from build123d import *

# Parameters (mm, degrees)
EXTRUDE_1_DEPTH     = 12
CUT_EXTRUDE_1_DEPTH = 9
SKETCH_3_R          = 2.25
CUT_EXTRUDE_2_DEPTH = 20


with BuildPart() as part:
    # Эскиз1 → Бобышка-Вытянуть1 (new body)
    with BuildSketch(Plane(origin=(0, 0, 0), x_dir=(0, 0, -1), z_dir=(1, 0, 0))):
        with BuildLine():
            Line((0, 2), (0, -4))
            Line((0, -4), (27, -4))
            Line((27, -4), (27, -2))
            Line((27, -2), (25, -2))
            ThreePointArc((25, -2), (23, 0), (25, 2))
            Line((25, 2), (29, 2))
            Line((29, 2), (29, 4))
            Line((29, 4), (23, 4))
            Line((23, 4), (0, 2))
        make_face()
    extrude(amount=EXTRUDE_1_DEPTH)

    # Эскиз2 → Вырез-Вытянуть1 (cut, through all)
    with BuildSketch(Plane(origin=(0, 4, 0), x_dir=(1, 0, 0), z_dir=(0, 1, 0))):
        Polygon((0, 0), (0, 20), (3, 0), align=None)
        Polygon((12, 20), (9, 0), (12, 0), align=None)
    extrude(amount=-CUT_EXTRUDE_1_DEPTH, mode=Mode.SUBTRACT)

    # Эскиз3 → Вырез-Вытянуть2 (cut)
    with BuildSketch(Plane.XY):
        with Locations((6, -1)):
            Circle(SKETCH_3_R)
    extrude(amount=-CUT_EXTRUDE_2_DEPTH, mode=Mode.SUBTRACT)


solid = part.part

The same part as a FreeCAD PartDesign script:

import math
import FreeCAD as App
import Part
import Sketcher

V = App.Vector


def add_polygon(sketch, points):
    """Adds a closed chain of lines whose ends are joined by coincident constraints."""
    first, n = sketch.GeometryCount, len(points)
    for a, b in zip(points, points[1:] + points[:1]):
        sketch.addGeometry(Part.LineSegment(App.Vector(*a, 0), App.Vector(*b, 0)), False)
    for i in range(n):
        sketch.addConstraint(Sketcher.Constraint("Coincident", first + i, 2, first + (i + 1) % n, 1))

doc = App.newDocument("Part")
body = doc.addObject("PartDesign::Body", "Body")

# Sketch on YZ plane
sketch1 = doc.addObject("Sketcher::SketchObject", "Sketch")
body.addObject(sketch1)
sketch1.AttachmentSupport = (doc.YZ_Plane, [""])
sketch1.MapMode = "FlatFace"
sketch1.addGeometry(Part.LineSegment(V(2, 0, 0), V(-4, 0, 0)), False)
sketch1.addGeometry(Part.LineSegment(V(-4, 0, 0), V(-4, -27, 0)), False)
sketch1.addGeometry(Part.LineSegment(V(-4, -27, 0), V(-2, -27, 0)), False)
sketch1.addGeometry(Part.LineSegment(V(-2, -27, 0), V(-2, -25, 0)), False)
sketch1.addGeometry(Part.ArcOfCircle(Part.Circle(V(0, -25, 0), V(0, 0, 1), 2), math.radians(0), math.radians(180)), False)
sketch1.addGeometry(Part.LineSegment(V(2, -25, 0), V(2, -29, 0)), False)
sketch1.addGeometry(Part.LineSegment(V(2, -29, 0), V(4, -29, 0)), False)
sketch1.addGeometry(Part.LineSegment(V(4, -29, 0), V(4, -23, 0)), False)
sketch1.addGeometry(Part.LineSegment(V(4, -23, 0), V(2, 0, 0)), False)
sketch1.addConstraint(Sketcher.Constraint("Coincident", 0, 2, 1, 1))
sketch1.addConstraint(Sketcher.Constraint("Coincident", 1, 2, 2, 1))
sketch1.addConstraint(Sketcher.Constraint("Coincident", 2, 2, 3, 1))
sketch1.addConstraint(Sketcher.Constraint("Tangent", 3, 2, 4, 2))
sketch1.addConstraint(Sketcher.Constraint("Tangent", 4, 1, 5, 1))
sketch1.addConstraint(Sketcher.Constraint("Coincident", 5, 2, 6, 1))
sketch1.addConstraint(Sketcher.Constraint("Coincident", 6, 2, 7, 1))
sketch1.addConstraint(Sketcher.Constraint("Coincident", 7, 2, 8, 1))
sketch1.addConstraint(Sketcher.Constraint("Coincident", 8, 2, 0, 1))
sketch1.addConstraint(Sketcher.Constraint("Horizontal", 0))
sketch1.addConstraint(Sketcher.Constraint("Vertical", 1))
sketch1.addConstraint(Sketcher.Constraint("Horizontal", 2))
sketch1.addConstraint(Sketcher.Constraint("Vertical", 3))
sketch1.addConstraint(Sketcher.Constraint("Vertical", 5))
sketch1.addConstraint(Sketcher.Constraint("Horizontal", 6))
sketch1.addConstraint(Sketcher.Constraint("Vertical", 7))
sketch1.addConstraint(Sketcher.Constraint("PointOnObject", 4, 3, -2))
sketch1.addConstraint(Sketcher.Constraint("PointOnObject", 0, 2, -1))
sketch1.addConstraint(Sketcher.Constraint("Vertical", 5, 2, 8, 2))
sketch1.addConstraint(Sketcher.Constraint("Equal", 2, 6))
sketch1.addConstraint(Sketcher.Constraint("Equal", 6, 3))
sketch1.addConstraint(Sketcher.Constraint("Equal", 0, 7))
sketch1.addConstraint(Sketcher.Constraint("Radius", 4, 2.0))
sketch1.addConstraint(Sketcher.Constraint("DistanceX", 0, 2, 0, 1, 6.0))
sketch1.addConstraint(Sketcher.Constraint("DistanceY", 1, 2, 1, 1, 27.0))
sketch1.addConstraint(Sketcher.Constraint("DistanceY", 5, 2, 5, 1, 4.0))
pad1 = doc.addObject("PartDesign::Pad", "Pad")
body.addObject(pad1)
pad1.Profile = sketch1
pad1.Length = 12

# Sketch on XZ plane
sketch2 = doc.addObject("Sketcher::SketchObject", "Sketch001")
body.addObject(sketch2)
sketch2.AttachmentSupport = (doc.XZ_Plane, [""])
sketch2.MapMode = "FlatFace"
sketch2.AttachmentOffset = App.Placement(V(0, 0, -4), App.Rotation())
add_polygon(sketch2, [(0, -20), (0, 0), (3, 0)])  # lines 0-2
add_polygon(sketch2, [(12, -20), (9, 0), (12, 0)])  # lines 3-5
sketch2.addConstraint(Sketcher.Constraint("Vertical", 0))
sketch2.addConstraint(Sketcher.Constraint("Horizontal", 1))
sketch2.addConstraint(Sketcher.Constraint("Horizontal", 4))
sketch2.addConstraint(Sketcher.Constraint("Vertical", 5))
sketch2.addConstraint(Sketcher.Constraint("Coincident", 0, 2, -1, 1))
sketch2.addConstraint(Sketcher.Constraint("PointOnObject", 3, 2, -1))
sketch2.addConstraint(Sketcher.Constraint("Horizontal", 2, 2, 5, 2))
sketch2.addConstraint(Sketcher.Constraint("Equal", 1, 4))
sketch2.addConstraint(Sketcher.Constraint("DistanceX", 1, 1, 1, 2, 3.0))
sketch2.addConstraint(Sketcher.Constraint("DistanceY", 0, 1, 0, 2, 20.0))
sketch2.addConstraint(Sketcher.Constraint("DistanceX", -1, 1, 3, 2, 9.0))
pocket1 = doc.addObject("PartDesign::Pocket", "Pocket")
body.addObject(pocket1)
pocket1.Profile = sketch2
pocket1.Type = "ThroughAll"
pocket1.Reversed = True

# Sketch on XY plane
sketch3 = doc.addObject("Sketcher::SketchObject", "Sketch002")
body.addObject(sketch3)
sketch3.AttachmentSupport = (doc.XY_Plane, [""])
sketch3.MapMode = "FlatFace"
sketch3.addGeometry(Part.Circle(V(6, -1, 0), V(0, 0, 1), 2.2), False)
sketch3.addConstraint(Sketcher.Constraint("Diameter", 0, 4.5))
sketch3.addConstraint(Sketcher.Constraint("DistanceX", -1, 1, 0, 3, 6.0))
sketch3.addConstraint(Sketcher.Constraint("DistanceY", 0, 3, -1, 1, 1.0))
pocket2 = doc.addObject("PartDesign::Pocket", "Pocket001")
body.addObject(pocket2)
pocket2.Profile = sketch3
pocket2.Length = 20

doc.recompute()
